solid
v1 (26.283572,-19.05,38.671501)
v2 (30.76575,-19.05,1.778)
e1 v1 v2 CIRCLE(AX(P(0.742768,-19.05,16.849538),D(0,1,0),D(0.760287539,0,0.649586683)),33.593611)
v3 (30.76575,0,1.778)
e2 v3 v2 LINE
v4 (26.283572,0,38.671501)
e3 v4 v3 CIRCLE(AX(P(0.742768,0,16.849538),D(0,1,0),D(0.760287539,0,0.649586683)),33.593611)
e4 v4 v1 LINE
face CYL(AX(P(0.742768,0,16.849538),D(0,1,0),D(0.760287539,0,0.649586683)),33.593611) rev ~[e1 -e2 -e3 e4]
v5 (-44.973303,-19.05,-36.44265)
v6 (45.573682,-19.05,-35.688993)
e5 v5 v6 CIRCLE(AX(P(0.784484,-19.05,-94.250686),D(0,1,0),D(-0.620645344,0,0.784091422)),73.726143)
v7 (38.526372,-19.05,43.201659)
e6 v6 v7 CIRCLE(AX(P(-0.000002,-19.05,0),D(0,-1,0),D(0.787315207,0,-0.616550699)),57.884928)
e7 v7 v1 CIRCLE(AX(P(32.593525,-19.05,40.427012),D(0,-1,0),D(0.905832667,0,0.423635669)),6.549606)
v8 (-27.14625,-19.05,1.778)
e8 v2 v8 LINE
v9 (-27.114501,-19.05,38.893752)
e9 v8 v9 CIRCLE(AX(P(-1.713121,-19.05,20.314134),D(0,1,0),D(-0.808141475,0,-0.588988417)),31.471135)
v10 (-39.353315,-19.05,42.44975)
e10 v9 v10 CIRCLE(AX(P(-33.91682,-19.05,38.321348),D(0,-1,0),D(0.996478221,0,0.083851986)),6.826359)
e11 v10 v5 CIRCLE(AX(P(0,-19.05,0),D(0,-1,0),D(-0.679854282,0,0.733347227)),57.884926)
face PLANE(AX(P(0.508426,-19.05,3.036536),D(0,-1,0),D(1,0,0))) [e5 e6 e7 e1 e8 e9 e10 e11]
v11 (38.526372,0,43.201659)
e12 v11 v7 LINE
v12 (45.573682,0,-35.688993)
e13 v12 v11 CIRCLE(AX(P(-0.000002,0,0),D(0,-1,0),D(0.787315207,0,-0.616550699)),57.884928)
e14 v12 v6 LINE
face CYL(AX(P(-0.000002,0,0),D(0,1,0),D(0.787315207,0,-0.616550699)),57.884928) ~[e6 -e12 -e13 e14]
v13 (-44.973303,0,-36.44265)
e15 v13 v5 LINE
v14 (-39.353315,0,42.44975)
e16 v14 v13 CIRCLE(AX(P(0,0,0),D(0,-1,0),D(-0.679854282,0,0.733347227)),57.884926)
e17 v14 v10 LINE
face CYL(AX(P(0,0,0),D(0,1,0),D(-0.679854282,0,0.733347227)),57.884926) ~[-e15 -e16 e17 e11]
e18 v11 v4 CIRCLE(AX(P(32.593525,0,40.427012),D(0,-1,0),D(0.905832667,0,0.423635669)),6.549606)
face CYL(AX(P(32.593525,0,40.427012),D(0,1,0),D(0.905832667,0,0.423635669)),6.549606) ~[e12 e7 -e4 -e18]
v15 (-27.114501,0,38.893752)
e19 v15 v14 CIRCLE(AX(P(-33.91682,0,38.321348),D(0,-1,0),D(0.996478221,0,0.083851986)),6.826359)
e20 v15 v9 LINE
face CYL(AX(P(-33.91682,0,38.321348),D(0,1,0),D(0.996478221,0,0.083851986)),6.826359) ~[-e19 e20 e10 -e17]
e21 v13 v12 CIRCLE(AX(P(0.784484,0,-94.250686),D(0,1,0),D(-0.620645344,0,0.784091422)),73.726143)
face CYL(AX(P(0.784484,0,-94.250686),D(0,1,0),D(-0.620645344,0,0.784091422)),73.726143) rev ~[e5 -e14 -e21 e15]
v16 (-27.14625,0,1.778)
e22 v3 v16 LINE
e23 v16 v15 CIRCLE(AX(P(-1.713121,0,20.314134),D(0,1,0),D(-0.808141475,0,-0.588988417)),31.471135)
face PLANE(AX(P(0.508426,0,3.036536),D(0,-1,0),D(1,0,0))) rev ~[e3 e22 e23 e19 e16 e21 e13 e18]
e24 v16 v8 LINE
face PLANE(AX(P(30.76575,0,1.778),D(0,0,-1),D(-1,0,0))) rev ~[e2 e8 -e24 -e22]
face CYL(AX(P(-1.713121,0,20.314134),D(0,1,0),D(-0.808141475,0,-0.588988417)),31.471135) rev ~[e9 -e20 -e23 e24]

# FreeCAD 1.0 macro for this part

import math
import FreeCAD as App
import Part
import Sketcher
from FreeCAD import Vector
Q = App.Units.Quantity

doc = App.newDocument("Part")
body = doc.addObject("PartDesign::Body", "Body")

# Sketch on XZ plane
sketch1 = doc.addObject("Sketcher::SketchObject", "Sketch")
body.addObject(sketch1)
sketch1.AttachmentSupport = (doc.XZ_Plane, [""])
sketch1.MapMode = "FlatFace"
sketch1.addGeometry(Part.ArcOfCircle(Part.Circle(Vector(-34, 38, 0), Vector(0, 0, 1), 7), math.radians(5), math.radians(143)), False)
sketch1.addGeometry(Part.ArcOfCircle(Part.Circle(Vector(0, 0, 0), Vector(0, 0, 1), 58), math.radians(133), math.radians(219)), False)
sketch1.addGeometry(Part.ArcOfCircle(Part.Circle(Vector(1, -94, 0), Vector(0, 0, 1), 74), math.radians(53), math.radians(128)), False)
sketch1.addGeometry(Part.ArcOfCircle(Part.Circle(Vector(0, 0, 0), Vector(0, 0, 1), 58), math.radians(-38), math.radians(48)), False)
sketch1.addGeometry(Part.ArcOfCircle(Part.Circle(Vector(33, 40, 0), Vector(0, 0, 1), 7), math.radians(25), math.radians(196)), False)
sketch1.addGeometry(Part.ArcOfCircle(Part.Circle(Vector(1, 17, 0), Vector(0, 0, 1), 34), math.radians(-27), math.radians(41)), False)
sketch1.addGeometry(Part.LineSegment(Vector(31, 2, 0), Vector(-27, 2, 0)), False)
sketch1.addGeometry(Part.ArcOfCircle(Part.Circle(Vector(-2, 20, 0), Vector(0, 0, 1), 31), math.radians(144), math.radians(216)), False)
sketch1.addConstraint(Sketcher.Constraint("Coincident", 0, 2, 1, 1))
sketch1.addConstraint(Sketcher.Constraint("Coincident", 1, 2, 2, 2))
sketch1.addConstraint(Sketcher.Constraint("Coincident", 2, 1, 3, 1))
sketch1.addConstraint(Sketcher.Constraint("Coincident", 3, 2, 4, 1))
sketch1.addConstraint(Sketcher.Constraint("Coincident", 4, 2, 5, 2))
sketch1.addConstraint(Sketcher.Constraint("Coincident", 5, 1, 6, 1))
sketch1.addConstraint(Sketcher.Constraint("Coincident", 6, 2, 7, 2))
sketch1.addConstraint(Sketcher.Constraint("Coincident", 7, 1, 0, 1))
sketch1.addConstraint(Sketcher.Constraint("Horizontal", 6))
sketch1.addConstraint(Sketcher.Constraint("Coincident", 1, 3, -1, 1))
sketch1.addConstraint(Sketcher.Constraint("Coincident", 3, 3, -1, 1))
sketch1.addConstraint(Sketcher.Constraint("Equal", 1, 3))
sketch1.addConstraint(Sketcher.Constraint("DistanceX", 6, 2, 6, 1, Q("2.28 in")))
sketch1.addConstraint(Sketcher.Constraint("DistanceY", -1, 1, 5, 1, Q("0.07 in")))
sketch1.addConstraint(Sketcher.Constraint("DistanceY", 7, 1, 0, 2, Q("0.1399999 in")))
sketch1.addConstraint(Sketcher.Constraint("DistanceY", -1, 1, 7, 1, Q("1.5312501 in")))
sketch1.addConstraint(Sketcher.Constraint("Radius", 0, Q("6.826359 mm")))
sketch1.addConstraint(Sketcher.Constraint("Radius", 5, Q("33.593611 mm")))
sketch1.addConstraint(Sketcher.Constraint("DistanceX", 4, 2, 3, 2, Q("0.482 in")))
sketch1.addConstraint(Sketcher.Constraint("DistanceY", -1, 1, 4, 2, Q("1.5225 in")))
sketch1.addConstraint(Sketcher.Constraint("DistanceX", 7, 1, -1, 1, Q("1.0675 in")))
sketch1.addConstraint(Sketcher.Constraint("Radius", 1, Q("57.884926 mm")))
sketch1.addConstraint(Sketcher.Constraint("Radius", 2, Q("73.726143 mm")))
sketch1.addConstraint(Sketcher.Constraint("Radius", 4, Q("6.549606 mm")))
sketch1.addConstraint(Sketcher.Constraint("Radius", 7, Q("31.471135 mm")))
sketch1.addConstraint(Sketcher.Constraint("DistanceY", 0, 3, 4, 3, Q("0.0829002 in")))
sketch1.addConstraint(Sketcher.Constraint("DistanceY", 2, 3, 4, 3, Q("134.677699 mm")))
sketch1.addConstraint(Sketcher.Constraint("DistanceX", 0, 3, 7, 3, Q("32.203699 mm")))
sketch1.addConstraint(Sketcher.Constraint("DistanceX", 1, 2, 3, 3, Q("44.973301 mm")))
pad1 = doc.addObject("PartDesign::Pad", "Pad")
body.addObject(pad1)
pad1.Profile = sketch1
pad1.Length = Q("0.75 in")

doc.recompute()
